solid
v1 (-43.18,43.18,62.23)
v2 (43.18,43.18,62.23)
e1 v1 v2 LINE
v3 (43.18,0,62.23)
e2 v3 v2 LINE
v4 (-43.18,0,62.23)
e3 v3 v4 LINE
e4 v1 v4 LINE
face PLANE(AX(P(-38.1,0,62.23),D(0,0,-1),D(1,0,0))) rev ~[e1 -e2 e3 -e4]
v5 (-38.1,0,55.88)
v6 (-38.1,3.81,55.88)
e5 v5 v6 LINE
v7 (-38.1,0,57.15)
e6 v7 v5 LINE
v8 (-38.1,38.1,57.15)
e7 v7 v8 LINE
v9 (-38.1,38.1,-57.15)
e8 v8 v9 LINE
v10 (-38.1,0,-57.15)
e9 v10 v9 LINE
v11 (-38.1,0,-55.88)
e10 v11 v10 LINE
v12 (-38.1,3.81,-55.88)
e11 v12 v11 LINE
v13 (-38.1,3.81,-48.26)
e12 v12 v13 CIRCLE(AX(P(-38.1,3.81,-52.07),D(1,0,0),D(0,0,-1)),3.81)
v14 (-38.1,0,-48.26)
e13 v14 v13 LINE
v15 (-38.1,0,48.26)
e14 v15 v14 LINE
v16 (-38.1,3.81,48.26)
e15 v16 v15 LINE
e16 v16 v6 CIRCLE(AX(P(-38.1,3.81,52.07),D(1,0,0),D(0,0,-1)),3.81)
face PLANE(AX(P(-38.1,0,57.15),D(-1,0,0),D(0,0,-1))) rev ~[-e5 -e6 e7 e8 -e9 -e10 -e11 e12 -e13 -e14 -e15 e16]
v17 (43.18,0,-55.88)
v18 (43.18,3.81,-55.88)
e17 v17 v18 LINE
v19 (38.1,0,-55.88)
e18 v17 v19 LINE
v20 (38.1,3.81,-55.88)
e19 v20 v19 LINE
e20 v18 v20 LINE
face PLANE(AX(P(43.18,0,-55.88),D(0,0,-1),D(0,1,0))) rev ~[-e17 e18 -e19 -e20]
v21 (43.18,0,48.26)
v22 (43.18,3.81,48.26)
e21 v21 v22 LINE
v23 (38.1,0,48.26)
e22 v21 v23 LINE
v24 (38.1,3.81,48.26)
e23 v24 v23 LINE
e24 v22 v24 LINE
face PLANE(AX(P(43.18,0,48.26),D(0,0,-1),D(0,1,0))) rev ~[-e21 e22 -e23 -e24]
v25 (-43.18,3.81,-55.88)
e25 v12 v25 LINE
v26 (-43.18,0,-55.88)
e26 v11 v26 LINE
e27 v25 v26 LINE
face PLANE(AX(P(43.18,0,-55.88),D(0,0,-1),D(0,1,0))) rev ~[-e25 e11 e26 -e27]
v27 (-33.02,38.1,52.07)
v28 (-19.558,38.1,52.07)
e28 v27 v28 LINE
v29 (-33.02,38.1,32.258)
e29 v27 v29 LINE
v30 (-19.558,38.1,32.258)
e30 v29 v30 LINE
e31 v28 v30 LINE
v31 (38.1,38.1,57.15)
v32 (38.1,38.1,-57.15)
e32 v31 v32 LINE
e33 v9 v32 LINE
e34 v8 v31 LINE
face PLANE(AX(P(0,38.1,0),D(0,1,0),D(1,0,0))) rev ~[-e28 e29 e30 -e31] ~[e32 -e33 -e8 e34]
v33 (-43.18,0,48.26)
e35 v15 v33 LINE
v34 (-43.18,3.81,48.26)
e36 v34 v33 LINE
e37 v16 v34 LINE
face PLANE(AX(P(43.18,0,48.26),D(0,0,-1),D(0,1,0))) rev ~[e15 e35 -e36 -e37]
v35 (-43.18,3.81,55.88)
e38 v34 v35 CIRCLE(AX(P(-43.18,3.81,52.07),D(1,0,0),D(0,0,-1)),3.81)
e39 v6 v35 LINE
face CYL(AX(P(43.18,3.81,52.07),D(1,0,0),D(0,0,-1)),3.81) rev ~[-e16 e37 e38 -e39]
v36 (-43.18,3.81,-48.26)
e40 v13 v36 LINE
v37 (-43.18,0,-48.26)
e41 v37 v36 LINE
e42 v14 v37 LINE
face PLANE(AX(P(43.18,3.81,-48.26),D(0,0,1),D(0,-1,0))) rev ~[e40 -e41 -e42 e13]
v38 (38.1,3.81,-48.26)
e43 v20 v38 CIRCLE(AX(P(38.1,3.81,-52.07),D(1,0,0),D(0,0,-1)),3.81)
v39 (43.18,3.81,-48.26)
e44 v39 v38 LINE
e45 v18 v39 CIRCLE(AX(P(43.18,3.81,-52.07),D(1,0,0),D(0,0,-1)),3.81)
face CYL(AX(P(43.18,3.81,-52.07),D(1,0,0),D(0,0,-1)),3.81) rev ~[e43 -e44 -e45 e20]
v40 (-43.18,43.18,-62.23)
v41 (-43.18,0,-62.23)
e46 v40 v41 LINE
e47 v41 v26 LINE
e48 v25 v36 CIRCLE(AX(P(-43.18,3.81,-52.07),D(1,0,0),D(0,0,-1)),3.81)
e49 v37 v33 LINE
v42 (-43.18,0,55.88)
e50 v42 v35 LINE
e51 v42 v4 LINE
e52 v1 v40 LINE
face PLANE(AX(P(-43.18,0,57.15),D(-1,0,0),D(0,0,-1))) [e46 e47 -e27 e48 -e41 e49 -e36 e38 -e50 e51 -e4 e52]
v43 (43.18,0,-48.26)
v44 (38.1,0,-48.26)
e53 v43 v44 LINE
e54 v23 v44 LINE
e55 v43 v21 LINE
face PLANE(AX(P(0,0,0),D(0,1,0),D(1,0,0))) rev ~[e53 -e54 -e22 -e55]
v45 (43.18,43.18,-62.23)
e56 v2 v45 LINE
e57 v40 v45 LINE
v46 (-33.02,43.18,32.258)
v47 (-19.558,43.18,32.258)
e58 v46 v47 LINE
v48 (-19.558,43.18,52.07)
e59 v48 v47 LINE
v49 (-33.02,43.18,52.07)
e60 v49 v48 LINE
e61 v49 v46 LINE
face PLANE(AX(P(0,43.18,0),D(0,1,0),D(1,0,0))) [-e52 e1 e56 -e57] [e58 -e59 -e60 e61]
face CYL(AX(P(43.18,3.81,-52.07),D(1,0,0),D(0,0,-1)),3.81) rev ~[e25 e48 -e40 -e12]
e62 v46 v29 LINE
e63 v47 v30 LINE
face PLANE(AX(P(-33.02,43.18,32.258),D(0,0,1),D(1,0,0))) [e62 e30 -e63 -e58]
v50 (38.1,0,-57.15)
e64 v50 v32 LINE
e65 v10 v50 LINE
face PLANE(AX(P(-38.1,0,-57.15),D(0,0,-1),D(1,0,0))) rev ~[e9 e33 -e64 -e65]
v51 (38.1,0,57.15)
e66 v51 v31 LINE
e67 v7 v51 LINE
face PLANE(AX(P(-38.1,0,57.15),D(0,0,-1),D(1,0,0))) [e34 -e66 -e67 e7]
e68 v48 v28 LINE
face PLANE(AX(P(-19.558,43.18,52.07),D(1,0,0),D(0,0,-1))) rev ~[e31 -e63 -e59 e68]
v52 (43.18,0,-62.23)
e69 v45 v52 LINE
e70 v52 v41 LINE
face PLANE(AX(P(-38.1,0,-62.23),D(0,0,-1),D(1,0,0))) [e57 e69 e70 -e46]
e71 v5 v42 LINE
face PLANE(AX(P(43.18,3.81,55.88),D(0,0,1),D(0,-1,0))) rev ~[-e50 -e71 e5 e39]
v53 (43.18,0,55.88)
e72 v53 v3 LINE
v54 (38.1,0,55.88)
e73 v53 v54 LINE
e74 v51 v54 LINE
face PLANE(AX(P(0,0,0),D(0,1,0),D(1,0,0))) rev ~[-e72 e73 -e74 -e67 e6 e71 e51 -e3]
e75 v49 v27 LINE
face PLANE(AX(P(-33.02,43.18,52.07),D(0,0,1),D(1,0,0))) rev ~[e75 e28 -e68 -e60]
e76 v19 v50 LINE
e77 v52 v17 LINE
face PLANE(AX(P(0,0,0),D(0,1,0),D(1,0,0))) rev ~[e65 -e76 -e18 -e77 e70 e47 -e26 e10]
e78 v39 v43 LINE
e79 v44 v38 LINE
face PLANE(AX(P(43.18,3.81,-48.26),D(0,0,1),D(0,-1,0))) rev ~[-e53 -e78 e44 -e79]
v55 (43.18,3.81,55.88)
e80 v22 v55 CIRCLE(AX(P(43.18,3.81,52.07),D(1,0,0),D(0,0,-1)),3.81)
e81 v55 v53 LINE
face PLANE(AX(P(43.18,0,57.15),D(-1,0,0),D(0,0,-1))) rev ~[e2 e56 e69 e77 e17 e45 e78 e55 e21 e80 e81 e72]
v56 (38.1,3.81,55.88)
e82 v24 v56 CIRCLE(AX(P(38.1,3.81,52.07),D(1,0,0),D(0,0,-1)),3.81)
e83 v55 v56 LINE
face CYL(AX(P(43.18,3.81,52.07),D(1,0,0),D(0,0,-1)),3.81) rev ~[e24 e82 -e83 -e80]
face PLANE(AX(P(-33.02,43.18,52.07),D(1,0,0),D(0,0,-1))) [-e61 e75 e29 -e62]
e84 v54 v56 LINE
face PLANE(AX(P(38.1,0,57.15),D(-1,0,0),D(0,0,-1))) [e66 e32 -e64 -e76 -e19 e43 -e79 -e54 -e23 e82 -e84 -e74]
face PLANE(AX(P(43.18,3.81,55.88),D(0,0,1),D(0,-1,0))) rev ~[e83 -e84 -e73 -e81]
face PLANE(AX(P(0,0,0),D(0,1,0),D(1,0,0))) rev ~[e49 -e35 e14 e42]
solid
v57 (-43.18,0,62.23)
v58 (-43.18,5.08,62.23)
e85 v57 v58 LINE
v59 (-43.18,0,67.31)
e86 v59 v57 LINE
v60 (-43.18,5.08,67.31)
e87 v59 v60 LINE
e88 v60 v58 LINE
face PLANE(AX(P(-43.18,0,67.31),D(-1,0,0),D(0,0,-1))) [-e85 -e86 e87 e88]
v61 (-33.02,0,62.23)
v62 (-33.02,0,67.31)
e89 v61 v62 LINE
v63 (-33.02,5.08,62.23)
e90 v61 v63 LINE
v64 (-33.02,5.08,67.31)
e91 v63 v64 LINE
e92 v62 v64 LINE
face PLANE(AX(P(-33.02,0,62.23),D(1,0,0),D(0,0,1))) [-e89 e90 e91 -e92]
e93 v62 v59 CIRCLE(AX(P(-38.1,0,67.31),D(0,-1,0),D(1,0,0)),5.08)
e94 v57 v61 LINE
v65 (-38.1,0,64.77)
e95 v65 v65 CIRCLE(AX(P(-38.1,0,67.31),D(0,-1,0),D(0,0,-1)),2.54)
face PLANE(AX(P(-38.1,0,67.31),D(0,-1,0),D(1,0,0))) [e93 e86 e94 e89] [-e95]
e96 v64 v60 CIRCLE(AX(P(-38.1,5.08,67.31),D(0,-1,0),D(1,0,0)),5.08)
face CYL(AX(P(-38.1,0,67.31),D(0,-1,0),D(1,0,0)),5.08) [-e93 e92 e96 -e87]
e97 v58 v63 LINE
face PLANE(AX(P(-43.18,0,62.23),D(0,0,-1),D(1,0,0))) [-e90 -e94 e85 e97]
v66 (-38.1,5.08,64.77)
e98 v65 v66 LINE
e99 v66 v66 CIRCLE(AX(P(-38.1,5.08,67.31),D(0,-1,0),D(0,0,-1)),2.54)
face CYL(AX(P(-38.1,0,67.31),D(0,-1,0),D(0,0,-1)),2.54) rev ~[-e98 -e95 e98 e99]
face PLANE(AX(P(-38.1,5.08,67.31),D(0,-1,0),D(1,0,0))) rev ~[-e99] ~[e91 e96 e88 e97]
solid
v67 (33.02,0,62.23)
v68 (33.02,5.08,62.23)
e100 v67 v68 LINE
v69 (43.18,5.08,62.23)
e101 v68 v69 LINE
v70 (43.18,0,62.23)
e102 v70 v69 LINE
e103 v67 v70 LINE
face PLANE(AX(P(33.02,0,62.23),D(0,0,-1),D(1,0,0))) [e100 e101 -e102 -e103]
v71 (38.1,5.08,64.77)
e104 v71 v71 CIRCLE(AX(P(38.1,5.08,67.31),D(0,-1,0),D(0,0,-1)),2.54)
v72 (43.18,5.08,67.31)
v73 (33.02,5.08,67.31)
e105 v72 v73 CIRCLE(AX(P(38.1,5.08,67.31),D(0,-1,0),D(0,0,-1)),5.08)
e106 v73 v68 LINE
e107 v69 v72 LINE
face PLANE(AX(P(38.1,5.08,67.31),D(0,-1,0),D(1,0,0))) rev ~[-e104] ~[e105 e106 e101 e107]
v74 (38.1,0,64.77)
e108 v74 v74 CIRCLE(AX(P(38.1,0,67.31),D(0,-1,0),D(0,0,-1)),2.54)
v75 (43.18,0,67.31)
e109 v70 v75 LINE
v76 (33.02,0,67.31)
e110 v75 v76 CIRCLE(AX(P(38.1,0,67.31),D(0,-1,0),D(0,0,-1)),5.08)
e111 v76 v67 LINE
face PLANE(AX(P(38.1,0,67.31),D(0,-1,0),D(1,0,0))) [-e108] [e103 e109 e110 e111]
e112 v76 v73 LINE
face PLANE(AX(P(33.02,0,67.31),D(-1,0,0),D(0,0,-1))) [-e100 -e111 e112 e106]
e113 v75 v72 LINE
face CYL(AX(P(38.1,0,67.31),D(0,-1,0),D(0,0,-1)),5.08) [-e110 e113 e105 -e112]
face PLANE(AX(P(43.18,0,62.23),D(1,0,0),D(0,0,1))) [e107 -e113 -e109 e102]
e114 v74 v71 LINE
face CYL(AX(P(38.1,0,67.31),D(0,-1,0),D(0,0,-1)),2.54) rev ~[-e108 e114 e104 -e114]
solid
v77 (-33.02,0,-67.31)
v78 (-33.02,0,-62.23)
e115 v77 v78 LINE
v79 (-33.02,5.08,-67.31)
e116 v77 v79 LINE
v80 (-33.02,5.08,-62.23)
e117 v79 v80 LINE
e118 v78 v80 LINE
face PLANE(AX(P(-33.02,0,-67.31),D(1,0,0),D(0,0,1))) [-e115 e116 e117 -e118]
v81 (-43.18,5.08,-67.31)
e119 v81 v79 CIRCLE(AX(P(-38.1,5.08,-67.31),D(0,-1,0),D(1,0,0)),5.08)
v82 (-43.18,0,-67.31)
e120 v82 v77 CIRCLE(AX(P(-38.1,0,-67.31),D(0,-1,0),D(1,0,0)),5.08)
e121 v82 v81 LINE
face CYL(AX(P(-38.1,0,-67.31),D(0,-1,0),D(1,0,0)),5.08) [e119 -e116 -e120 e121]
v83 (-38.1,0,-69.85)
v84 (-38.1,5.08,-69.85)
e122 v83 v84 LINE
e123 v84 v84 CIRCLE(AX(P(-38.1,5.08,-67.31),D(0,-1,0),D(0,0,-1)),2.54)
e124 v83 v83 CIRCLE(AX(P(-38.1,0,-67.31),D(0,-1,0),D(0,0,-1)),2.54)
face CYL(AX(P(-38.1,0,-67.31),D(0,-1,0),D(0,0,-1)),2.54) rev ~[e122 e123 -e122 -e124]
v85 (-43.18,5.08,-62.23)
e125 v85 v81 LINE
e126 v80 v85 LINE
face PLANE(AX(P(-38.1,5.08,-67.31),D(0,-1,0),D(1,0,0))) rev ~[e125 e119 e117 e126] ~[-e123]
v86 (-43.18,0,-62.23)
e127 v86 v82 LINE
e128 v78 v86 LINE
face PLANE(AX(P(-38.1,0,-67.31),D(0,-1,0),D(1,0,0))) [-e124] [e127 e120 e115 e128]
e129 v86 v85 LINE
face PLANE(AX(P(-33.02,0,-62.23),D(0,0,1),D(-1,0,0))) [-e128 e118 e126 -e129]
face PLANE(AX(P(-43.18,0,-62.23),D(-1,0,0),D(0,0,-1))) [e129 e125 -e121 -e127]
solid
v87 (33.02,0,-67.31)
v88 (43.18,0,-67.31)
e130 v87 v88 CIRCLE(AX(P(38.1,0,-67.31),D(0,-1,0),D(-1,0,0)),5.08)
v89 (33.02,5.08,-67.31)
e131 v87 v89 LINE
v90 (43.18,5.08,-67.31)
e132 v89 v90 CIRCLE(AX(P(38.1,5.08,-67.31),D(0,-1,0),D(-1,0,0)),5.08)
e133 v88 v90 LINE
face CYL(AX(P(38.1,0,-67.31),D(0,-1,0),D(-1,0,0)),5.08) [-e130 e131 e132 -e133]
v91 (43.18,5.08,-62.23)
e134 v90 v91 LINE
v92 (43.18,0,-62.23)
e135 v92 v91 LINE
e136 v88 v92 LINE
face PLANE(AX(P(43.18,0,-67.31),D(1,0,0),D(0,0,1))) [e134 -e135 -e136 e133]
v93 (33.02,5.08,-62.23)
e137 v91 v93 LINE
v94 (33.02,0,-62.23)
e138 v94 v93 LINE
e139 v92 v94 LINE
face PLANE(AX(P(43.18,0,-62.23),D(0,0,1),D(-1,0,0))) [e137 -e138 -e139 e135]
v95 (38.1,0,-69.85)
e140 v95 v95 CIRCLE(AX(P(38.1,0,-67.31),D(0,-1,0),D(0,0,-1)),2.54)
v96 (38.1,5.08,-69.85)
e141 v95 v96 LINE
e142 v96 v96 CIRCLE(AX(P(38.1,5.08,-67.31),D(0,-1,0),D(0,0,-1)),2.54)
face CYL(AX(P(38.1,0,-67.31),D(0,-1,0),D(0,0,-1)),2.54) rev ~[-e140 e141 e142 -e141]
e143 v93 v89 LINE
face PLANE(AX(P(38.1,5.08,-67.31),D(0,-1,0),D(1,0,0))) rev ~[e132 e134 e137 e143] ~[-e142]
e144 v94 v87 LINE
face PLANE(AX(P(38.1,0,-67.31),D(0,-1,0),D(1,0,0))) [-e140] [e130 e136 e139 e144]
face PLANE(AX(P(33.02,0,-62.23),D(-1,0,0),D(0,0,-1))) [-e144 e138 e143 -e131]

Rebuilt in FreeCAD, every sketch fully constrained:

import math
import FreeCAD as App
import Part
import Sketcher
from FreeCAD import Vector
Q = App.Units.Quantity


def faces_at(feature, points):
    """Names of the faces that lie closest to the given points."""
    faces = feature.Shape.Faces
    near = lambda p: min(range(len(faces)), key=lambda i: faces[i].distToShape(Part.Vertex(*p))[0])
    return sorted({f"Face{near(p) + 1}" for p in points})


def add_polygon(sketch, points):
    """Adds a closed chain of lines whose ends are joined by coincident constraints."""
    first, n = sketch.GeometryCount, len(points)
    for a, b in zip(points, points[1:] + points[:1]):
        sketch.addGeometry(Part.LineSegment(App.Vector(*a, 0), App.Vector(*b, 0)), False)
    for i in range(n):
        sketch.addConstraint(Sketcher.Constraint("Coincident", first + i, 2, first + (i + 1) % n, 1))

doc = App.newDocument("Part")
body = doc.addObject("PartDesign::Body", "Body")

sketch1 = body.newObject("Sketcher::SketchObject", "Sketch")
sketch1.AttachmentSupport = (doc.getObject("XZ_Plane"), [""])
sketch1.MapMode = "FlatFace"
add_polygon(sketch1, [(-38.1, -57.15), (-38.1, 57.15), (38.1, 57.15), (38.1, -57.15)])
sketch1.addConstraint(Sketcher.Constraint("Vertical", 0))
sketch1.addConstraint(Sketcher.Constraint("Horizontal", 1))
sketch1.addConstraint(Sketcher.Constraint("Vertical", 2))
sketch1.addConstraint(Sketcher.Constraint("Horizontal", 3))
sketch1.addConstraint(Sketcher.Constraint("Symmetric", 0, 2, 2, 2, -1, 1))
sketch1.addConstraint(Sketcher.Constraint("DistanceX", 1, 1, 1, 2, Q("3 in")))
sketch1.addConstraint(Sketcher.Constraint("DistanceY", 0, 1, 0, 2, Q("4.5 in")))
pad1 = body.newObject("PartDesign::Pad", "Pad")
pad1.Profile = sketch1
pad1.Length = Q("1.5 in")
pad1.Reversed = True
doc.recompute()

thickness = body.newObject("PartDesign::Thickness", "Thickness")
thickness.Base = (pad1, faces_at(pad1, [(0, 0, 0)]))
thickness.Value = Q("0.2 in")
thickness.Reversed = False
thickness.Join = "Intersection"

sketch2 = body.newObject("Sketcher::SketchObject", "Sketch001")
sketch2.AttachmentSupport = (doc.getObject("YZ_Plane"), [""])
sketch2.MapMode = "FlatFace"
sketch2.AttachmentOffset = App.Placement(Vector(0, 0, 1.7 * 25.4), App.Rotation())
sketch2.addGeometry(Part.LineSegment(Vector(3.81, 55.88, 0), Vector(0, 55.88, 0)), False)
sketch2.addGeometry(Part.LineSegment(Vector(0, 55.88, 0), Vector(0, 48.26, 0)), False)
sketch2.addGeometry(Part.LineSegment(Vector(0, 48.26, 0), Vector(3.81, 48.26, 0)), False)
sketch2.addGeometry(Part.ArcOfCircle(Part.Circle(Vector(3.81, 52.07, 0), Vector(0, 0, 1), 3.81), math.radians(-90), math.radians(90)), False)
sketch2.addGeometry(Part.LineSegment(Vector(3.81, -48.26, 0), Vector(0, -48.26, 0)), False)
sketch2.addGeometry(Part.LineSegment(Vector(0, -48.26, 0), Vector(0, -55.88, 0)), False)
sketch2.addGeometry(Part.LineSegment(Vector(0, -55.88, 0), Vector(3.81, -55.88, 0)), False)
sketch2.addGeometry(Part.ArcOfCircle(Part.Circle(Vector(3.81, -52.07, 0), Vector(0, 0, 1), 3.81), math.radians(-90), math.radians(90)), False)
sketch2.addConstraint(Sketcher.Constraint("Coincident", 0, 2, 1, 1))
sketch2.addConstraint(Sketcher.Constraint("Coincident", 1, 2, 2, 1))
sketch2.addConstraint(Sketcher.Constraint("Tangent", 2, 2, 3, 1))
sketch2.addConstraint(Sketcher.Constraint("Tangent", 3, 2, 0, 1))
sketch2.addConstraint(Sketcher.Constraint("Coincident", 4, 2, 5, 1))
sketch2.addConstraint(Sketcher.Constraint("Coincident", 5, 2, 6, 1))
sketch2.addConstraint(Sketcher.Constraint("Tangent", 6, 2, 7, 1))
sketch2.addConstraint(Sketcher.Constraint("Tangent", 7, 2, 4, 1))
sketch2.addConstraint(Sketcher.Constraint("Horizontal", 0))
sketch2.addConstraint(Sketcher.Constraint("Vertical", 1))
sketch2.addConstraint(Sketcher.Constraint("Horizontal", 2))
sketch2.addConstraint(Sketcher.Constraint("Horizontal", 4))
sketch2.addConstraint(Sketcher.Constraint("Vertical", 5))
sketch2.addConstraint(Sketcher.Constraint("Horizontal", 6))
sketch2.addConstraint(Sketcher.Constraint("Equal", 3, 7))
sketch2.addConstraint(Sketcher.Constraint("Symmetric", 1, 2, 4, 2, -1, 1))
sketch2.addConstraint(Sketcher.Constraint("PointOnObject", 0, 2, -2))
sketch2.addConstraint(Sketcher.Constraint("Vertical", 3, 3, 7, 3))
sketch2.addConstraint(Sketcher.Constraint("Radius", 3, Q("0.15 in")))
sketch2.addConstraint(Sketcher.Constraint("DistanceX", 0, 2, 0, 1, Q("0.15 in")))
sketch2.addConstraint(Sketcher.Constraint("DistanceY", -1, 1, 0, 2, Q("2.2 in")))
pocket1 = body.newObject("PartDesign::Pocket", "Pocket")
pocket1.Profile = sketch2
pocket1.Type = "ThroughAll"

sketch3 = body.newObject("Sketcher::SketchObject", "Sketch002")
sketch3.AttachmentSupport = (doc.getObject("XZ_Plane"), [""])
sketch3.MapMode = "FlatFace"
sketch3.AttachmentOffset = App.Placement(Vector(0, 0, -1.7 * 25.4), App.Rotation())
add_polygon(sketch3, [(-33.02, 32.258), (-33.02, 52.07), (-19.558, 52.07), (-19.558, 32.258)])
sketch3.addConstraint(Sketcher.Constraint("Vertical", 0))
sketch3.addConstraint(Sketcher.Constraint("Horizontal", 1))
sketch3.addConstraint(Sketcher.Constraint("Vertical", 2))
sketch3.addConstraint(Sketcher.Constraint("Horizontal", 3))
sketch3.addConstraint(Sketcher.Constraint("DistanceX", 1, 1, 1, 2, Q("0.53 in")))
sketch3.addConstraint(Sketcher.Constraint("DistanceY", 0, 1, 0, 2, Q("0.78 in")))
sketch3.addConstraint(Sketcher.Constraint("DistanceX", 0, 2, -1, 1, Q("1.3 in")))
sketch3.addConstraint(Sketcher.Constraint("DistanceY", -1, 1, 0, 2, Q("2.05 in")))
pocket2 = body.newObject("PartDesign::Pocket", "Pocket001")
pocket2.Profile = sketch3
pocket2.Type = "ThroughAll"
pocket2.Reversed = True
body2 = doc.addObject("PartDesign::Body", "Body001")
body2.AllowCompound = True

sketch4 = body2.newObject("Sketcher::SketchObject", "Sketch003")
sketch4.AttachmentSupport = (doc.getObject("XZ_Plane001"), [""])
sketch4.MapMode = "FlatFace"
sketch4.addGeometry(Part.ArcOfCircle(Part.Circle(Vector(-38.1, 67.31, 0), Vector(0, 0, 1), 5.08), math.radians(0), math.radians(180)), False)
sketch4.addGeometry(Part.LineSegment(Vector(-43.18, 67.31, 0), Vector(-43.18, 62.23, 0)), False)
sketch4.addGeometry(Part.LineSegment(Vector(-43.18, 62.23, 0), Vector(-33.02, 62.23, 0)), False)
sketch4.addGeometry(Part.LineSegment(Vector(-33.02, 62.23, 0), Vector(-33.02, 67.31, 0)), False)
sketch4.addGeometry(Part.Circle(Vector(-38.1, 67.31, 0), Vector(0, 0, 1), 2.54), False)
sketch4.addGeometry(Part.LineSegment(Vector(33.02, 67.31, 0), Vector(33.02, 62.23, 0)), False)
sketch4.addGeometry(Part.LineSegment(Vector(33.02, 62.23, 0), Vector(43.18, 62.23, 0)), False)
sketch4.addGeometry(Part.LineSegment(Vector(43.18, 62.23, 0), Vector(43.18, 67.31, 0)), False)
sketch4.addGeometry(Part.ArcOfCircle(Part.Circle(Vector(38.1, 67.31, 0), Vector(0, 0, 1), 5.08), math.radians(0), math.radians(180)), False)
sketch4.addGeometry(Part.Circle(Vector(38.1, 67.31, 0), Vector(0, 0, 1), 2.54), False)
sketch4.addGeometry(Part.LineSegment(Vector(33.02, -62.23, 0), Vector(33.02, -67.31, 0)), False)
sketch4.addGeometry(Part.ArcOfCircle(Part.Circle(Vector(38.1, -67.31, 0), Vector(0, 0, 1), 5.08), math.radians(180), math.radians(360)), False)
sketch4.addGeometry(Part.LineSegment(Vector(43.18, -67.31, 0), Vector(43.18, -62.23, 0)), False)
sketch4.addGeometry(Part.LineSegment(Vector(43.18, -62.23, 0), Vector(33.02, -62.23, 0)), False)
sketch4.addGeometry(Part.Circle(Vector(38.1, -67.31, 0), Vector(0, 0, 1), 2.54), False)
sketch4.addGeometry(Part.ArcOfCircle(Part.Circle(Vector(-38.1, -67.31, 0), Vector(0, 0, 1), 5.08), math.radians(180), math.radians(360)), False)
sketch4.addGeometry(Part.LineSegment(Vector(-33.02, -67.31, 0), Vector(-33.02, -62.23, 0)), False)
sketch4.addGeometry(Part.LineSegment(Vector(-33.02, -62.23, 0), Vector(-43.18, -62.23, 0)), False)
sketch4.addGeometry(Part.LineSegment(Vector(-43.18, -62.23, 0), Vector(-43.18, -67.31, 0)), False)
sketch4.addGeometry(Part.Circle(Vector(-38.1, -67.31, 0), Vector(0, 0, 1), 2.54), False)
sketch4.addConstraint(Sketcher.Constraint("Tangent", 0, 2, 1, 1))
sketch4.addConstraint(Sketcher.Constraint("Coincident", 1, 2, 2, 1))
sketch4.addConstraint(Sketcher.Constraint("Coincident", 2, 2, 3, 1))
sketch4.addConstraint(Sketcher.Constraint("Tangent", 3, 2, 0, 1))
sketch4.addConstraint(Sketcher.Constraint("Coincident", 5, 2, 6, 1))
sketch4.addConstraint(Sketcher.Constraint("Coincident", 6, 2, 7, 1))
sketch4.addConstraint(Sketcher.Constraint("Tangent", 7, 2, 8, 1))
sketch4.addConstraint(Sketcher.Constraint("Tangent", 8, 2, 5, 1))
sketch4.addConstraint(Sketcher.Constraint("Tangent", 10, 2, 11, 1))
sketch4.addConstraint(Sketcher.Constraint("Tangent", 11, 2, 12, 1))
sketch4.addConstraint(Sketcher.Constraint("Coincident", 12, 2, 13, 1))
sketch4.addConstraint(Sketcher.Constraint("Coincident", 13, 2, 10, 1))
sketch4.addConstraint(Sketcher.Constraint("Tangent", 15, 2, 16, 1))
sketch4.addConstraint(Sketcher.Constraint("Coincident", 16, 2, 17, 1))
sketch4.addConstraint(Sketcher.Constraint("Coincident", 17, 2, 18, 1))
sketch4.addConstraint(Sketcher.Constraint("Tangent", 18, 2, 15, 1))
sketch4.addConstraint(Sketcher.Constraint("Vertical", 1))
sketch4.addConstraint(Sketcher.Constraint("Horizontal", 2))
sketch4.addConstraint(Sketcher.Constraint("Vertical", 3))
sketch4.addConstraint(Sketcher.Constraint("Vertical", 5))
sketch4.addConstraint(Sketcher.Constraint("Horizontal", 6))
sketch4.addConstraint(Sketcher.Constraint("Vertical", 7))
sketch4.addConstraint(Sketcher.Constraint("Vertical", 10))
sketch4.addConstraint(Sketcher.Constraint("Vertical", 12))
sketch4.addConstraint(Sketcher.Constraint("Horizontal", 13))
sketch4.addConstraint(Sketcher.Constraint("Vertical", 16))
sketch4.addConstraint(Sketcher.Constraint("Horizontal", 17))
sketch4.addConstraint(Sketcher.Constraint("Vertical", 18))
sketch4.addConstraint(Sketcher.Constraint("Coincident", 4, 3, 0, 3))
sketch4.addConstraint(Sketcher.Constraint("Coincident", 9, 3, 8, 3))
sketch4.addConstraint(Sketcher.Constraint("Coincident", 14, 3, 11, 3))
sketch4.addConstraint(Sketcher.Constraint("Coincident", 19, 3, 15, 3))
sketch4.addConstraint(Sketcher.Constraint("Equal", 0, 8))
sketch4.addConstraint(Sketcher.Constraint("Equal", 4, 9))
sketch4.addConstraint(Sketcher.Constraint("Equal", 8, 11))
sketch4.addConstraint(Sketcher.Constraint("Equal", 9, 14))
sketch4.addConstraint(Sketcher.Constraint("Equal", 11, 15))
sketch4.addConstraint(Sketcher.Constraint("Equal", 14, 19))
sketch4.addConstraint(Sketcher.Constraint("Symmetric", 0, 3, 11, 3, -1, 1))
sketch4.addConstraint(Sketcher.Constraint("Symmetric", 8, 3, 15, 3, -1, 1))
sketch4.addConstraint(Sketcher.Constraint("Symmetric", 0, 3, 8, 3, -2))
sketch4.addConstraint(Sketcher.Constraint("Horizontal", 2, 2, 5, 2))
sketch4.addConstraint(Sketcher.Constraint("Horizontal", 13, 2, 16, 2))
sketch4.addConstraint(Sketcher.Constraint("Equal", 7, 10))
sketch4.addConstraint(Sketcher.Constraint("Diameter", 4, Q("0.2 in")))
sketch4.addConstraint(Sketcher.Constraint("Radius", 0, Q("0.2 in")))
sketch4.addConstraint(Sketcher.Constraint("DistanceY", 1, 2, 1, 1, Q("0.2 in")))
sketch4.addConstraint(Sketcher.Constraint("DistanceX", 0, 3, 8, 3, Q("3 in")))
sketch4.addConstraint(Sketcher.Constraint("DistanceY", 11, 3, 8, 3, Q("5.3 in")))
pad2 = body2.newObject("PartDesign::Pad", "Pad001")
pad2.Profile = sketch4
pad2.Length = Q("0.2 in")
pad2.Reversed = True

doc.recompute()
